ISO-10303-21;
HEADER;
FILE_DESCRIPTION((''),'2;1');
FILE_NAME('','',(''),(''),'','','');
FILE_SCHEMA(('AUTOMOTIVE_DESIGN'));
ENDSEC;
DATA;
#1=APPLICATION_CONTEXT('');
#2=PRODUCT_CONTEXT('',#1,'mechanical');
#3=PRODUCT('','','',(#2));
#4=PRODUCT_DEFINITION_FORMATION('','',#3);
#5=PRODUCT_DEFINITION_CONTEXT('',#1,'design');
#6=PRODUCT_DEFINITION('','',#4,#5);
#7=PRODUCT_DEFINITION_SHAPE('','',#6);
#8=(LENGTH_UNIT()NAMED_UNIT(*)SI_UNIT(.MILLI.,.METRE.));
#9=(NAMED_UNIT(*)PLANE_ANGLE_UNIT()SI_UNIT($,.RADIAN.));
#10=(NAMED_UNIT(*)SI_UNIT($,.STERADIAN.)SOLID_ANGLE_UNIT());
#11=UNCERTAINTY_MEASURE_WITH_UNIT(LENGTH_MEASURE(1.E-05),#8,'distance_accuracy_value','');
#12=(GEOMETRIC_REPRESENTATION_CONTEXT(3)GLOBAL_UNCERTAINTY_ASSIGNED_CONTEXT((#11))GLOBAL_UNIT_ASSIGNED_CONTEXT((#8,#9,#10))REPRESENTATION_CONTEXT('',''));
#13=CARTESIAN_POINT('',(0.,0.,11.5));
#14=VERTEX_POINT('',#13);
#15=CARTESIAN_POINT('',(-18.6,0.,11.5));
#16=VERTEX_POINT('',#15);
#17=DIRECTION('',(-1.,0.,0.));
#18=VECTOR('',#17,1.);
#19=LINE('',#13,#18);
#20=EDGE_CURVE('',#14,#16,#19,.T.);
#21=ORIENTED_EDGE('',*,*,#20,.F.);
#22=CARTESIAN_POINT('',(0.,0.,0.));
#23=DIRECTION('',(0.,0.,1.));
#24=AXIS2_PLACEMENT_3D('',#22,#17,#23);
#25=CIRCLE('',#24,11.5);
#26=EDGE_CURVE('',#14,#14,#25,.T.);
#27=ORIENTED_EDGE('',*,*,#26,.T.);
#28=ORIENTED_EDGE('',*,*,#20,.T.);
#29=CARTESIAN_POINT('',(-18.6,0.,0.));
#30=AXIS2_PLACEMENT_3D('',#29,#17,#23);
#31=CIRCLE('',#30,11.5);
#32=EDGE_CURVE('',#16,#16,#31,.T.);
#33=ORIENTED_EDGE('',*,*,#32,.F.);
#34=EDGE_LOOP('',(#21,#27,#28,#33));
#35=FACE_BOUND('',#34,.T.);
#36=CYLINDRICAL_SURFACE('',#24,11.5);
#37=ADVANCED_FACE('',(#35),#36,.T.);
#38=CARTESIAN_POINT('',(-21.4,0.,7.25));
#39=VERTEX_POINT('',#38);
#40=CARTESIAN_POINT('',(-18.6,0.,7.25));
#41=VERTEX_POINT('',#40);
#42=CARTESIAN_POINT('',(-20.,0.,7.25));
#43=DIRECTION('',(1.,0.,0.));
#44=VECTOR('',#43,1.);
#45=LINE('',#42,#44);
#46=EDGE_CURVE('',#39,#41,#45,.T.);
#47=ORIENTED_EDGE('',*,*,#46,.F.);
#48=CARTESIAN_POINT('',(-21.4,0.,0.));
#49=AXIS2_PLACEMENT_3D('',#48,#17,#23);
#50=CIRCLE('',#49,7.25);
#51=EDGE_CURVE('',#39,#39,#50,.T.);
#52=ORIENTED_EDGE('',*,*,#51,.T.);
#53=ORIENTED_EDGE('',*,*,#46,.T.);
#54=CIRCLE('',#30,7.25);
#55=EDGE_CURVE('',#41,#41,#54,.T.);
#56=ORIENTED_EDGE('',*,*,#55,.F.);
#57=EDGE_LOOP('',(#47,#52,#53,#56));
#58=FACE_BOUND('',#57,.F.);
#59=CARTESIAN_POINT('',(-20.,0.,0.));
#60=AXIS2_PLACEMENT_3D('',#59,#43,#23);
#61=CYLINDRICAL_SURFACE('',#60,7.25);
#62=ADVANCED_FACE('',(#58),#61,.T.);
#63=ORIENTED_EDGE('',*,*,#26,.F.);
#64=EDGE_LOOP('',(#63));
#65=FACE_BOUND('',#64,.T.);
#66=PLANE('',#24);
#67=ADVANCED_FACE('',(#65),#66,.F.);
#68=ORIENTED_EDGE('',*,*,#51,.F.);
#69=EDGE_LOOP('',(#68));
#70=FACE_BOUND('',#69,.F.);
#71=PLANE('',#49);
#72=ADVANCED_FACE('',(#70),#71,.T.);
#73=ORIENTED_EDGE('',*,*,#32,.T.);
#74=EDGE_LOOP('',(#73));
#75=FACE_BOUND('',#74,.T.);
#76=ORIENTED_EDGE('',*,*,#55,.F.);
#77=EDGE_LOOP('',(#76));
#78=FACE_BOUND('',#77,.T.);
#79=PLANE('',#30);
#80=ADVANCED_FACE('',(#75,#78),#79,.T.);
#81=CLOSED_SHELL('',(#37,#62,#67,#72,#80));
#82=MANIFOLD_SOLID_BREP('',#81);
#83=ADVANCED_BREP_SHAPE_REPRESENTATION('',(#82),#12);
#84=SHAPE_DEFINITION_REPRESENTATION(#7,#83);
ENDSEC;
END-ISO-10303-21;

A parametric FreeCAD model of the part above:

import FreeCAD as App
import Part
import Sketcher
Q = App.Units.Quantity


def add_polygon(sketch, points):
    """Adds a closed chain of lines whose ends are joined by coincident constraints."""
    first, n = sketch.GeometryCount, len(points)
    for a, b in zip(points, points[1:] + points[:1]):
        sketch.addGeometry(Part.LineSegment(App.Vector(*a, 0), App.Vector(*b, 0)), False)
    for i in range(n):
        sketch.addConstraint(Sketcher.Constraint("Coincident", first + i, 2, first + (i + 1) % n, 1))

doc = App.newDocument("Part")
body = doc.addObject("PartDesign::Body", "Body")

# Sketch on XZ plane
sketch1 = body.newObject("Sketcher::SketchObject", "Sketch")
sketch1.AttachmentSupport = (doc.getObject("XZ_Plane"), [""])
sketch1.MapMode = "FlatFace"
add_polygon(sketch1, [(0, 11.5), (-18.6, 11.5), (-18.6, 7.25), (-21.4, 7.25), (-21.4, 0), (0, 0)])  # lines 0-5
sketch1.addConstraint(Sketcher.Constraint("Horizontal", 0))
sketch1.addConstraint(Sketcher.Constraint("Vertical", 1))
sketch1.addConstraint(Sketcher.Constraint("Horizontal", 2))
sketch1.addConstraint(Sketcher.Constraint("Vertical", 3))
sketch1.addConstraint(Sketcher.Constraint("Horizontal", 4))
sketch1.addConstraint(Sketcher.Constraint("Vertical", 5))
sketch1.addConstraint(Sketcher.Constraint("Coincident", 4, 2, -1, 1))
sketch1.addConstraint(Sketcher.Constraint("DistanceX", 0, 2, 0, 1, Q("18.6 mm")))
sketch1.addConstraint(Sketcher.Constraint("DistanceX", 2, 2, 2, 1, Q("2.8 mm")))
sketch1.addConstraint(Sketcher.Constraint("DistanceY", 5, 1, 5, 2, Q("11.5 mm")))
sketch1.addConstraint(Sketcher.Constraint("DistanceY", 1, 2, 1, 1, Q("4.25 mm")))
revolution = body.newObject("PartDesign::Revolution", "Revolution")
revolution.Profile = sketch1
revolution.ReferenceAxis = (sketch1, ["H_Axis"])
revolution.Angle = 360

doc.recompute()
